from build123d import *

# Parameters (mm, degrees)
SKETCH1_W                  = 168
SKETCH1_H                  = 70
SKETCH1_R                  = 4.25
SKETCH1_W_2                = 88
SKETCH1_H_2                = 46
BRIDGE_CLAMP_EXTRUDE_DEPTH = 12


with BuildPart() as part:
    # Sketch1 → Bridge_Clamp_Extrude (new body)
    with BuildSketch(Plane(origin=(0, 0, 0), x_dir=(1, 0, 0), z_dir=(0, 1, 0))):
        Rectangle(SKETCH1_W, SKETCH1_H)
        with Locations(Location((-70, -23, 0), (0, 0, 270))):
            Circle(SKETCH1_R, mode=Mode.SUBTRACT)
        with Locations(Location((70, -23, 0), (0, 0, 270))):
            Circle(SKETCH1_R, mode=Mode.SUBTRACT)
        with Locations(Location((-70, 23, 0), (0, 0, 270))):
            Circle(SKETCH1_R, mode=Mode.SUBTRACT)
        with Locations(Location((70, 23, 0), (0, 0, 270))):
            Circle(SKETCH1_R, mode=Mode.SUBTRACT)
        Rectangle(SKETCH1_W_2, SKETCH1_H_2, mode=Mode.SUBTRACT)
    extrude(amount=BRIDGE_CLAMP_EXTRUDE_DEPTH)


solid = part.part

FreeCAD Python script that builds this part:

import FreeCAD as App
import Part
import Sketcher

V = App.Vector

doc = App.newDocument("Part")
body = doc.addObject("PartDesign::Body", "Body")

# Sketch on XZ plane
sketch1 = body.newObject("Sketcher::SketchObject", "Sketch")
sketch1.AttachmentSupport = (doc.getObject("XZ_Plane"), [""])
sketch1.MapMode = "FlatFace"
sketch1.addGeometry([
    Part.LineSegment(V(-84, -35, 0), V(-84, 35, 0)),  # 0
    Part.LineSegment(V(-84, 35, 0), V(84, 35, 0)),  # 1
    Part.LineSegment(V(84, 35, 0), V(84, -35, 0)),  # 2
    Part.LineSegment(V(84, -35, 0), V(-84, -35, 0)),  # 3
    Part.Circle(V(-70, 23, 0), V(0, 0, 1), 4.2),  # 4
    Part.Circle(V(70, 23, 0), V(0, 0, 1), 4.2),  # 5
    Part.Circle(V(-70, -23, 0), V(0, 0, 1), 4.2),  # 6
    Part.LineSegment(V(44, 23, 0), V(-44, 23, 0)),  # 7
    Part.LineSegment(V(-44, 23, 0), V(-44, -23, 0)),  # 8
    Part.LineSegment(V(-44, -23, 0), V(44, -23, 0)),  # 9
    Part.LineSegment(V(44, -23, 0), V(44, 23, 0)),  # 10
    Part.Circle(V(70, -23, 0), V(0, 0, 1), 4.2),  # 11
], False)
sketch1.addConstraint([
    Sketcher.Constraint("Coincident", 0, 2, 1, 1),
    Sketcher.Constraint("Coincident", 1, 2, 2, 1),
    Sketcher.Constraint("Coincident", 2, 2, 3, 1),
    Sketcher.Constraint("Coincident", 3, 2, 0, 1),
    Sketcher.Constraint("Coincident", 7, 2, 8, 1),
    Sketcher.Constraint("Coincident", 8, 2, 9, 1),
    Sketcher.Constraint("Coincident", 9, 2, 10, 1),
    Sketcher.Constraint("Coincident", 10, 2, 7, 1),
    Sketcher.Constraint("Vertical", 0),
    Sketcher.Constraint("Horizontal", 1),
    Sketcher.Constraint("Vertical", 2),
    Sketcher.Constraint("Horizontal", 3),
    Sketcher.Constraint("Horizontal", 7),
    Sketcher.Constraint("Vertical", 8),
    Sketcher.Constraint("Horizontal", 9),
    Sketcher.Constraint("Vertical", 10),
    Sketcher.Constraint("Equal", 4, 5),
    Sketcher.Constraint("Equal", 5, 6),
    Sketcher.Constraint("Equal", 6, 11),
    Sketcher.Constraint("Symmetric", 5, 3, 6, 3, -1, 1),
    Sketcher.Constraint("Symmetric", 4, 3, 11, 3, -1, 1),
    Sketcher.Constraint("Symmetric", 0, 2, 2, 2, -1, 1),
    Sketcher.Constraint("Symmetric", 7, 2, 9, 2, -1, 1),
    Sketcher.Constraint("Symmetric", 4, 3, 5, 3, -2),
    Sketcher.Constraint("Horizontal", 5, 3, 7, 2),
    Sketcher.Constraint("Diameter", 4, 8.5),
    Sketcher.Constraint("DistanceX", 1, 1, 1, 2, 168.0),
    Sketcher.Constraint("DistanceX", 7, 2, 7, 1, 88.0),
    Sketcher.Constraint("DistanceY", 0, 1, 0, 2, 70.0),
    Sketcher.Constraint("DistanceY", 8, 2, 8, 1, 46.0),
    Sketcher.Constraint("DistanceX", 4, 3, -1, 1, 70.0),
])
pad1 = body.newObject("PartDesign::Pad", "Pad")
pad1.Profile = sketch1
pad1.Length = 12
pad1.Reversed = True

doc.recompute()
